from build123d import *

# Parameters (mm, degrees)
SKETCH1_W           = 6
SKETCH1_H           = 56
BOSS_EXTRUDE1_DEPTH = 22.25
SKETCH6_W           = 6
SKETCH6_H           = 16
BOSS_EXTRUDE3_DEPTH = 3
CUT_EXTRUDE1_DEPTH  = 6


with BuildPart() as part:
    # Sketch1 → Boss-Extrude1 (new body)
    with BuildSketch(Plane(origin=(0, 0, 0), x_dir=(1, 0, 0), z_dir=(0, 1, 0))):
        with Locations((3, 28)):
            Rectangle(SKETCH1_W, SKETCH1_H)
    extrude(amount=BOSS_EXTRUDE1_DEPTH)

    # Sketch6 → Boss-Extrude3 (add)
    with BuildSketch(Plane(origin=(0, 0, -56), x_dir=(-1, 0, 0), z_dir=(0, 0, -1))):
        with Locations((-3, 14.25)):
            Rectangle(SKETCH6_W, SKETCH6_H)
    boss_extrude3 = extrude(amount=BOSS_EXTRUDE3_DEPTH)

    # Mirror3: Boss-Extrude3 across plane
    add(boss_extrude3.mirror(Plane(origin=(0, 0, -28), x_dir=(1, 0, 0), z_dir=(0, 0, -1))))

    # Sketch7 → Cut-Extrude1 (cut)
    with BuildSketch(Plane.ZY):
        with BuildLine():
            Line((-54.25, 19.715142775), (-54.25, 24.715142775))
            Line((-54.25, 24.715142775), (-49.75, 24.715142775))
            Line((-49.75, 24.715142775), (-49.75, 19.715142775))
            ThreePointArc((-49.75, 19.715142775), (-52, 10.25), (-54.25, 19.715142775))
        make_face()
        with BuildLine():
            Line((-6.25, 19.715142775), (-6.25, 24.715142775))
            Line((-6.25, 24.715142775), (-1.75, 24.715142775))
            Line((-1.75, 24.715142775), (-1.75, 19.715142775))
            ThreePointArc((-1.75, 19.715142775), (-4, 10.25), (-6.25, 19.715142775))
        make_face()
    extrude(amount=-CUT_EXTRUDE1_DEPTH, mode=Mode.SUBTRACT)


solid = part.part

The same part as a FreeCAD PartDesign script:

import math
import FreeCAD as App
import Part
import Sketcher

doc = App.newDocument("Part")
params = doc.addObject("Spreadsheet::Sheet", "Params")
for row, (alias, value) in enumerate([
    ("sketch1_width", "6 mm"),
    ("sketch1_height", "56 mm"),
    ("pad1_length", "22.25 mm"),
    ("sketch2_width", "6 mm"),
    ("sketch2_height", "16 mm"),
    ("pad2_length", "3 mm"),
    ("sketch3_radius", "5 mm"),
    ("sketch3_width", "5 mm"),
    ("sketch3_height", "4.5 mm"),
    ("pocket1_length", "6 mm"),
], start=1):
    params.set(f"A{row}", alias)
    params.set(f"B{row}", "=" + value)
    params.setAlias(f"B{row}", alias)

body = doc.addObject("PartDesign::Body", "Body")

# Sketch on XZ plane
sketch1 = body.newObject("Sketcher::SketchObject", "Sketch")
sketch1.AttachmentSupport = (doc.getObject("XZ_Plane"), [""])
sketch1.MapMode = "FlatFace"
sketch1.addGeometry(Part.LineSegment(App.Vector(0, -56, 0), App.Vector(0, 0, 0)), False)
sketch1.addGeometry(Part.LineSegment(App.Vector(0, 0, 0), App.Vector(6, 0, 0)), False)
sketch1.addGeometry(Part.LineSegment(App.Vector(6, 0, 0), App.Vector(6, -56, 0)), False)
sketch1.addGeometry(Part.LineSegment(App.Vector(6, -56, 0), App.Vector(0, -56, 0)), False)
sketch1.addConstraint(Sketcher.Constraint("Coincident", 0, 2, 1, 1))
sketch1.addConstraint(Sketcher.Constraint("Coincident", 1, 2, 2, 1))
sketch1.addConstraint(Sketcher.Constraint("Coincident", 2, 2, 3, 1))
sketch1.addConstraint(Sketcher.Constraint("Coincident", 3, 2, 0, 1))
sketch1.addConstraint(Sketcher.Constraint("Vertical", 0))
sketch1.addConstraint(Sketcher.Constraint("Horizontal", 1))
sketch1.addConstraint(Sketcher.Constraint("Vertical", 2))
sketch1.addConstraint(Sketcher.Constraint("Horizontal", 3))
sketch1.addConstraint(Sketcher.Constraint("Coincident", 0, 2, -1, 1))
sketch1.addConstraint(Sketcher.Constraint("DistanceX", 1, 1, 1, 2, 6.0))
sketch1.addConstraint(Sketcher.Constraint("DistanceY", 0, 1, 0, 2, 56.0))
sketch1.setExpression("Constraints[9]", "Params.sketch1_width")
sketch1.setExpression("Constraints[10]", "Params.sketch1_height")
pad1 = body.newObject("PartDesign::Pad", "Pad")
pad1.Profile = sketch1
pad1.setExpression("Length", "Params.pad1_length")
pad1.Reversed = True

# Sketch on XY plane
sketch2 = body.newObject("Sketcher::SketchObject", "Sketch001")
sketch2.AttachmentSupport = (doc.getObject("XY_Plane"), [""])
sketch2.MapMode = "FlatFace"
sketch2.AttachmentOffset = App.Placement(App.Vector(0, 0, -56), App.Rotation())
sketch2.addGeometry(Part.LineSegment(App.Vector(6, 22, 0), App.Vector(6, 6, 0)), False)
sketch2.addGeometry(Part.LineSegment(App.Vector(6, 6, 0), App.Vector(0, 6, 0)), False)
sketch2.addGeometry(Part.LineSegment(App.Vector(0, 6, 0), App.Vector(0, 22, 0)), False)
sketch2.addGeometry(Part.LineSegment(App.Vector(0, 22, 0), App.Vector(6, 22, 0)), False)
sketch2.addConstraint(Sketcher.Constraint("Coincident", 0, 2, 1, 1))
sketch2.addConstraint(Sketcher.Constraint("Coincident", 1, 2, 2, 1))
sketch2.addConstraint(Sketcher.Constraint("Coincident", 2, 2, 3, 1))
sketch2.addConstraint(Sketcher.Constraint("Coincident", 3, 2, 0, 1))
sketch2.addConstraint(Sketcher.Constraint("Vertical", 0))
sketch2.addConstraint(Sketcher.Constraint("Horizontal", 1))
sketch2.addConstraint(Sketcher.Constraint("Vertical", 2))
sketch2.addConstraint(Sketcher.Constraint("Horizontal", 3))
sketch2.addConstraint(Sketcher.Constraint("PointOnObject", 1, 2, -2))
sketch2.addConstraint(Sketcher.Constraint("DistanceX", 1, 2, 1, 1, 6.0))
sketch2.addConstraint(Sketcher.Constraint("DistanceY", 0, 2, 0, 1, 16.0))
sketch2.addConstraint(Sketcher.Constraint("DistanceY", -1, 1, 0, 2, 6.25))
sketch2.setExpression("Constraints[9]", "Params.sketch2_width")
sketch2.setExpression("Constraints[10]", "Params.sketch2_height")
pad2 = body.newObject("PartDesign::Pad", "Pad001")
pad2.Profile = sketch2
pad2.setExpression("Length", "Params.pad2_length")
pad2.Reversed = True
doc.recompute()

datumplane = body.newObject("PartDesign::Plane", "DatumPlane")
datumplane.AttachmentSupport = (doc.getObject("XY_Plane"), [""])
datumplane.MapMode = "FlatFace"
datumplane.AttachmentOffset = App.Placement(App.Vector(0, 0, -28), App.Rotation())
mirrored = body.newObject("PartDesign::Mirrored", "Mirrored")
mirrored.Originals = [pad2]
mirrored.MirrorPlane = (datumplane, [""])
body.Tip = mirrored

# Sketch on YZ plane
sketch3 = body.newObject("Sketcher::SketchObject", "Sketch002")
sketch3.AttachmentSupport = (doc.getObject("YZ_Plane"), [""])
sketch3.MapMode = "FlatFace"
sketch3.addGeometry(Part.LineSegment(App.Vector(24.7, -54.2, 0), App.Vector(19.7, -54.2, 0)), False)
sketch3.addGeometry(Part.ArcOfCircle(Part.Circle(App.Vector(15.2, -52, 0), App.Vector(0, 0, 1), 5), math.radians(27), math.radians(333)), False)
sketch3.addGeometry(Part.LineSegment(App.Vector(19.7, -49.8, 0), App.Vector(24.7, -49.8, 0)), False)
sketch3.addGeometry(Part.LineSegment(App.Vector(24.7, -49.8, 0), App.Vector(24.7, -54.2, 0)), False)
sketch3.addGeometry(Part.LineSegment(App.Vector(24.7, -6.2, 0), App.Vector(19.7, -6.2, 0)), False)
sketch3.addGeometry(Part.ArcOfCircle(Part.Circle(App.Vector(15.2, -4, 0), App.Vector(0, 0, 1), 5), math.radians(27), math.radians(333)), False)
sketch3.addGeometry(Part.LineSegment(App.Vector(19.7, -1.8, 0), App.Vector(24.7, -1.8, 0)), False)
sketch3.addGeometry(Part.LineSegment(App.Vector(24.7, -1.8, 0), App.Vector(24.7, -6.2, 0)), False)
sketch3.addConstraint(Sketcher.Constraint("Coincident", 0, 2, 1, 2))
sketch3.addConstraint(Sketcher.Constraint("Coincident", 1, 1, 2, 1))
sketch3.addConstraint(Sketcher.Constraint("Coincident", 2, 2, 3, 1))
sketch3.addConstraint(Sketcher.Constraint("Coincident", 3, 2, 0, 1))
sketch3.addConstraint(Sketcher.Constraint("Coincident", 4, 2, 5, 2))
sketch3.addConstraint(Sketcher.Constraint("Coincident", 5, 1, 6, 1))
sketch3.addConstraint(Sketcher.Constraint("Coincident", 6, 2, 7, 1))
sketch3.addConstraint(Sketcher.Constraint("Coincident", 7, 2, 4, 1))
sketch3.addConstraint(Sketcher.Constraint("Horizontal", 0))
sketch3.addConstraint(Sketcher.Constraint("Horizontal", 2))
sketch3.addConstraint(Sketcher.Constraint("Vertical", 3))
sketch3.addConstraint(Sketcher.Constraint("Horizontal", 4))
sketch3.addConstraint(Sketcher.Constraint("Horizontal", 6))
sketch3.addConstraint(Sketcher.Constraint("Vertical", 7))
sketch3.addConstraint(Sketcher.Constraint("Equal", 1, 5))
sketch3.addConstraint(Sketcher.Constraint("Vertical", 1, 3, 5, 3))
sketch3.addConstraint(Sketcher.Constraint("Vertical", 0, 2, 1, 1))
sketch3.addConstraint(Sketcher.Constraint("Vertical", 1, 1, 4, 2))
sketch3.addConstraint(Sketcher.Constraint("Vertical", 4, 2, 5, 1))
sketch3.addConstraint(Sketcher.Constraint("Vertical", 3, 2, 6, 2))
sketch3.addConstraint(Sketcher.Constraint("Radius", 1, 5.0))
sketch3.addConstraint(Sketcher.Constraint("DistanceX", 0, 2, 0, 1, 5.0))
sketch3.addConstraint(Sketcher.Constraint("DistanceY", 3, 2, 3, 1, 4.5))
sketch3.addConstraint(Sketcher.Constraint("DistanceY", 1, 3, -1, 1, 52.0))
sketch3.addConstraint(Sketcher.Constraint("DistanceY", 5, 3, -1, 1, 4.0))
sketch3.addConstraint(Sketcher.Constraint("DistanceX", -1, 1, 1, 3, 15.25))
sketch3.setExpression("Constraints[20]", "Params.sketch3_radius")
sketch3.setExpression("Constraints[21]", "Params.sketch3_width")
sketch3.setExpression("Constraints[22]", "Params.sketch3_height")
pocket1 = body.newObject("PartDesign::Pocket", "Pocket")
pocket1.Profile = sketch3
pocket1.setExpression("Length", "Params.pocket1_length")
pocket1.Reversed = True

doc.recompute()
